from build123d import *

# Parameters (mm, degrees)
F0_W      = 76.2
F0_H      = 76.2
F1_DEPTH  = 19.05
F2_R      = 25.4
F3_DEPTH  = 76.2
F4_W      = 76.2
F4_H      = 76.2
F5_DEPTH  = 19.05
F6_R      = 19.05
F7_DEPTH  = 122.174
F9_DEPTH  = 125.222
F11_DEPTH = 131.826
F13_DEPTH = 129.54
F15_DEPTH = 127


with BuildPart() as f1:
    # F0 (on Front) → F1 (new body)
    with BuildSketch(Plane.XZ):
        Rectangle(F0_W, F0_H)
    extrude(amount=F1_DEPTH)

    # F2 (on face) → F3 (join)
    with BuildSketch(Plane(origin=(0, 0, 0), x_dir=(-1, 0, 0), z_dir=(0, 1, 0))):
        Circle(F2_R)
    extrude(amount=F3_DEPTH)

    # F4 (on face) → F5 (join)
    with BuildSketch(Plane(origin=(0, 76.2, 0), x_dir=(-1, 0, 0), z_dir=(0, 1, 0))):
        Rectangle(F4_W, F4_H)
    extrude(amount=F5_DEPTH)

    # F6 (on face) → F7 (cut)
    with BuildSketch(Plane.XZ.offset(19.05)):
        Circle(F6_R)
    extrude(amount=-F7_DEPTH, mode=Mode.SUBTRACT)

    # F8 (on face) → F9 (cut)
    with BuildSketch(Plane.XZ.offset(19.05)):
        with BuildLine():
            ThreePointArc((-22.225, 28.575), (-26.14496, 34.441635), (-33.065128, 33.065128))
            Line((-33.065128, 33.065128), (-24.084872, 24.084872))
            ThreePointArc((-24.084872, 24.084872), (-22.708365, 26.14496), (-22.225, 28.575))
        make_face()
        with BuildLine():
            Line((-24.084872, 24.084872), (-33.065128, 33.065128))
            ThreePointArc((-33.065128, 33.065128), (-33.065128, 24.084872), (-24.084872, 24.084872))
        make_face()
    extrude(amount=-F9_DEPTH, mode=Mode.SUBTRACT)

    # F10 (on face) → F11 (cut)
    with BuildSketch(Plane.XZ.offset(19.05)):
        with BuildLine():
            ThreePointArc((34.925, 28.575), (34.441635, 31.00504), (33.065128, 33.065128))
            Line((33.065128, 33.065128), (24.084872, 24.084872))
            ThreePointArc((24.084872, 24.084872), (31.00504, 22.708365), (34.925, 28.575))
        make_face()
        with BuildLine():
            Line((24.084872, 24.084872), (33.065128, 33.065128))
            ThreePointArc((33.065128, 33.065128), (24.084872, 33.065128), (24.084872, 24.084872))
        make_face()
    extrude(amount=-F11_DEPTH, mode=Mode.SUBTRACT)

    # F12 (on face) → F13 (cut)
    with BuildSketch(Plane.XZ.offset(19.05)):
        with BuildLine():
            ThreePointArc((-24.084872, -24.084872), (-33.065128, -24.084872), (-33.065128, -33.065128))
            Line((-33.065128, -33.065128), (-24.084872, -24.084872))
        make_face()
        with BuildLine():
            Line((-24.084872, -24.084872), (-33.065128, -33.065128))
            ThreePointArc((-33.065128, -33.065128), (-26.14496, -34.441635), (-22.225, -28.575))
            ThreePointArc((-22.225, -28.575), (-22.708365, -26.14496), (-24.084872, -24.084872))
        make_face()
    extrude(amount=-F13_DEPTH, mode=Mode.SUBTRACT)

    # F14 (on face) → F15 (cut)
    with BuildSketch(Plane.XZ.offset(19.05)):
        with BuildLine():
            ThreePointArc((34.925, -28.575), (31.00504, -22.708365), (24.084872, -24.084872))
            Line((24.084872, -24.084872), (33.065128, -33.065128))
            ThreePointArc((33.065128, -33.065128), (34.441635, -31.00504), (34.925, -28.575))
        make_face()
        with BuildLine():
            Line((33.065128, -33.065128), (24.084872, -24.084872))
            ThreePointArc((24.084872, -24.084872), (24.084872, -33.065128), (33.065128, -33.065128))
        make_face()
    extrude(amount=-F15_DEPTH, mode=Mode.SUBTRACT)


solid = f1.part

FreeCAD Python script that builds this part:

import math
import FreeCAD as App
import Part
import Sketcher
from FreeCAD import Vector
Q = App.Units.Quantity


def add_polygon(sketch, points):
    """Adds a closed chain of lines whose ends are joined by coincident constraints."""
    first, n = sketch.GeometryCount, len(points)
    for a, b in zip(points, points[1:] + points[:1]):
        sketch.addGeometry(Part.LineSegment(App.Vector(*a, 0), App.Vector(*b, 0)), False)
    for i in range(n):
        sketch.addConstraint(Sketcher.Constraint("Coincident", first + i, 2, first + (i + 1) % n, 1))

doc = App.newDocument("Part")
params = doc.addObject("Spreadsheet::Sheet", "Params")
for row, (alias, value) in enumerate([
    ("sketch1_width", "3 in"),
    ("pad1_length", "0.75 in"),
    ("sketch2_diameter", "2 in"),
    ("pad2_length", "3 in"),
    ("sketch3_width", "3 in"),
    ("pad3_length", "0.75 in"),
    ("sketch4_diameter", "1.5 in"),
    ("pocket1_length", "4.81 in"),
    ("sketch5_radius", "0.25 in"),
    ("pocket2_length", "4.93 in"),
    ("sketch6_radius", "0.25 in"),
    ("pocket3_length", "5.19 in"),
    ("sketch7_radius", "0.25 in"),
    ("pocket4_length", "5.1 in"),
    ("sketch8_radius", "0.25 in"),
    ("pocket5_length", "5 in"),
], start=1):
    params.set(f"A{row}", alias)
    params.set(f"B{row}", "=" + value)
    params.setAlias(f"B{row}", alias)

body = doc.addObject("PartDesign::Body", "Body")

# Sketch on XZ plane
sketch1 = body.newObject("Sketcher::SketchObject", "Sketch")
sketch1.AttachmentSupport = (doc.getObject("XZ_Plane"), [""])
sketch1.MapMode = "FlatFace"
add_polygon(sketch1, [(-38, 38), (-38, -38), (38, -38), (38, 38)])  # lines 0-3
sketch1.addConstraint(Sketcher.Constraint("Vertical", 0))
sketch1.addConstraint(Sketcher.Constraint("Horizontal", 1))
sketch1.addConstraint(Sketcher.Constraint("Vertical", 2))
sketch1.addConstraint(Sketcher.Constraint("Horizontal", 3))
sketch1.addConstraint(Sketcher.Constraint("Symmetric", 0, 2, 2, 2, -1, 1))
sketch1.addConstraint(Sketcher.Constraint("Equal", 3, 0))
sketch1.addConstraint(Sketcher.Constraint("DistanceX", 1, 1, 1, 2, Q("3 in")))
sketch1.setExpression("Constraints[10]", "Params.sketch1_width")
pad1 = body.newObject("PartDesign::Pad", "Pad")
pad1.Profile = sketch1
pad1.setExpression("Length", "Params.pad1_length")

# Sketch on XZ plane
sketch2 = body.newObject("Sketcher::SketchObject", "Sketch001")
sketch2.AttachmentSupport = (doc.getObject("XZ_Plane"), [""])
sketch2.MapMode = "FlatFace"
sketch2.addGeometry(Part.Circle(Vector(0, 0, 0), Vector(0, 0, 1), 25), False)
sketch2.addConstraint(Sketcher.Constraint("Coincident", 0, 3, -1, 1))
sketch2.addConstraint(Sketcher.Constraint("Diameter", 0, Q("2 in")))
sketch2.setExpression("Constraints[1]", "Params.sketch2_diameter")
pad2 = body.newObject("PartDesign::Pad", "Pad001")
pad2.Profile = sketch2
pad2.setExpression("Length", "Params.pad2_length")
pad2.Reversed = True

# Sketch on XZ plane
sketch3 = body.newObject("Sketcher::SketchObject", "Sketch002")
sketch3.AttachmentSupport = (doc.getObject("XZ_Plane"), [""])
sketch3.MapMode = "FlatFace"
sketch3.AttachmentOffset = App.Placement(Vector(0, 0, -3 * 25.4), App.Rotation())
add_polygon(sketch3, [(38, 38), (38, -38), (-38, -38), (-38, 38)])  # lines 0-3
sketch3.addConstraint(Sketcher.Constraint("Vertical", 0))
sketch3.addConstraint(Sketcher.Constraint("Horizontal", 1))
sketch3.addConstraint(Sketcher.Constraint("Vertical", 2))
sketch3.addConstraint(Sketcher.Constraint("Horizontal", 3))
sketch3.addConstraint(Sketcher.Constraint("Symmetric", 0, 2, 2, 2, -1, 1))
sketch3.addConstraint(Sketcher.Constraint("Equal", 3, 0))
sketch3.addConstraint(Sketcher.Constraint("DistanceX", 1, 2, 1, 1, Q("3 in")))
sketch3.setExpression("Constraints[10]", "Params.sketch3_width")
pad3 = body.newObject("PartDesign::Pad", "Pad002")
pad3.Profile = sketch3
pad3.setExpression("Length", "Params.pad3_length")
pad3.Reversed = True

# Sketch on XZ plane
sketch4 = body.newObject("Sketcher::SketchObject", "Sketch003")
sketch4.AttachmentSupport = (doc.getObject("XZ_Plane"), [""])
sketch4.MapMode = "FlatFace"
sketch4.AttachmentOffset = App.Placement(Vector(0, 0, 0.75 * 25.4), App.Rotation())
sketch4.addGeometry(Part.Circle(Vector(0, 0, 0), Vector(0, 0, 1), 19), False)
sketch4.addConstraint(Sketcher.Constraint("Coincident", 0, 3, -1, 1))
sketch4.addConstraint(Sketcher.Constraint("Diameter", 0, Q("1.5 in")))
sketch4.setExpression("Constraints[1]", "Params.sketch4_diameter")
pocket1 = body.newObject("PartDesign::Pocket", "Pocket")
pocket1.Profile = sketch4
pocket1.setExpression("Length", "Params.pocket1_length")

# Sketch on XZ plane
sketch5 = body.newObject("Sketcher::SketchObject", "Sketch004")
sketch5.AttachmentSupport = (doc.getObject("XZ_Plane"), [""])
sketch5.MapMode = "FlatFace"
sketch5.AttachmentOffset = App.Placement(Vector(0, 0, 0.75 * 25.4), App.Rotation())
sketch5.addGeometry(Part.ArcOfCircle(Part.Circle(Vector(-28.6, 28.6, 0), Vector(0, 0, 1), 6.3), math.radians(0), math.radians(135)), False)
sketch5.addGeometry(Part.ArcOfCircle(Part.Circle(Vector(-28.6, 28.6, 0), Vector(0, 0, 1), 6.3), math.radians(135), math.radians(315)), False)
sketch5.addGeometry(Part.ArcOfCircle(Part.Circle(Vector(-28.6, 28.6, 0), Vector(0, 0, 1), 6.3), math.radians(-45), math.radians(0)), False)
sketch5.addConstraint(Sketcher.Constraint("Tangent", 0, 2, 1, 1))
sketch5.addConstraint(Sketcher.Constraint("Tangent", 1, 2, 2, 1))
sketch5.addConstraint(Sketcher.Constraint("Tangent", 2, 2, 0, 1))
sketch5.addConstraint(Sketcher.Constraint("Horizontal", 1, 3, 2, 2))
sketch5.addConstraint(Sketcher.Constraint("Radius", 0, Q("0.25 in")))
sketch5.addConstraint(Sketcher.Constraint("DistanceX", 0, 3, -1, 1, Q("1.125 in")))
sketch5.addConstraint(Sketcher.Constraint("DistanceY", -1, 1, 0, 3, Q("1.125 in")))
sketch5.addConstraint(Sketcher.Constraint("DistanceX", 0, 2, 0, 3, 4.490128))
sketch5.addConstraint(Sketcher.Constraint("DistanceY", 1, 2, 0, 3, 4.490128))
sketch5.setExpression("Constraints[4]", "Params.sketch5_radius")
pocket2 = body.newObject("PartDesign::Pocket", "Pocket001")
pocket2.Profile = sketch5
pocket2.setExpression("Length", "Params.pocket2_length")

# Sketch on XZ plane
sketch6 = body.newObject("Sketcher::SketchObject", "Sketch005")
sketch6.AttachmentSupport = (doc.getObject("XZ_Plane"), [""])
sketch6.MapMode = "FlatFace"
sketch6.AttachmentOffset = App.Placement(Vector(0, 0, 0.75 * 25.4), App.Rotation())
sketch6.addGeometry(Part.ArcOfCircle(Part.Circle(Vector(28.6, 28.6, 0), Vector(0, 0, 1), 6.3), math.radians(0), math.radians(45)), False)
sketch6.addGeometry(Part.ArcOfCircle(Part.Circle(Vector(28.6, 28.6, 0), Vector(0, 0, 1), 6.3), math.radians(45), math.radians(225)), False)
sketch6.addGeometry(Part.ArcOfCircle(Part.Circle(Vector(28.6, 28.6, 0), Vector(0, 0, 1), 6.3), math.radians(-135), math.radians(0)), False)
sketch6.addConstraint(Sketcher.Constraint("Tangent", 0, 2, 1, 1))
sketch6.addConstraint(Sketcher.Constraint("Tangent", 1, 2, 2, 1))
sketch6.addConstraint(Sketcher.Constraint("Tangent", 2, 2, 0, 1))
sketch6.addConstraint(Sketcher.Constraint("Horizontal", 1, 3, 2, 2))
sketch6.addConstraint(Sketcher.Constraint("Radius", 0, Q("0.25 in")))
sketch6.addConstraint(Sketcher.Constraint("DistanceX", -1, 1, 0, 3, Q("1.125 in")))
sketch6.addConstraint(Sketcher.Constraint("DistanceY", -1, 1, 0, 3, Q("1.125 in")))
sketch6.addConstraint(Sketcher.Constraint("DistanceY", 2, 3, 0, 2, 4.490128))
sketch6.addConstraint(Sketcher.Constraint("DistanceX", 1, 2, 2, 3, 4.490128))
sketch6.setExpression("Constraints[4]", "Params.sketch6_radius")
pocket3 = body.newObject("PartDesign::Pocket", "Pocket002")
pocket3.Profile = sketch6
pocket3.setExpression("Length", "Params.pocket3_length")

# Sketch on XZ plane
sketch7 = body.newObject("Sketcher::SketchObject", "Sketch006")
sketch7.AttachmentSupport = (doc.getObject("XZ_Plane"), [""])
sketch7.MapMode = "FlatFace"
sketch7.AttachmentOffset = App.Placement(Vector(0, 0, 0.75 * 25.4), App.Rotation())
sketch7.addGeometry(Part.ArcOfCircle(Part.Circle(Vector(-28.6, -28.6, 0), Vector(0, 0, 1), 6.3), math.radians(45), math.radians(225)), False)
sketch7.addGeometry(Part.ArcOfCircle(Part.Circle(Vector(-28.6, -28.6, 0), Vector(0, 0, 1), 6.3), math.radians(-135), math.radians(0)), False)
sketch7.addGeometry(Part.ArcOfCircle(Part.Circle(Vector(-28.6, -28.6, 0), Vector(0, 0, 1), 6.3), math.radians(0), math.radians(45)), False)
sketch7.addConstraint(Sketcher.Constraint("Tangent", 0, 2, 1, 1))
sketch7.addConstraint(Sketcher.Constraint("Tangent", 1, 2, 2, 1))
sketch7.addConstraint(Sketcher.Constraint("Tangent", 2, 2, 0, 1))
sketch7.addConstraint(Sketcher.Constraint("Horizontal", 2, 3, 1, 2))
sketch7.addConstraint(Sketcher.Constraint("Radius", 0, Q("0.25 in")))
sketch7.addConstraint(Sketcher.Constraint("DistanceX", 0, 3, -1, 1, Q("1.125 in")))
sketch7.addConstraint(Sketcher.Constraint("DistanceY", 0, 3, -1, 1, Q("1.125 in")))
sketch7.addConstraint(Sketcher.Constraint("DistanceX", 0, 2, 1, 3, 4.490128))
sketch7.addConstraint(Sketcher.Constraint("DistanceY", 1, 3, 2, 2, 4.490128))
sketch7.setExpression("Constraints[4]", "Params.sketch7_radius")
pocket4 = body.newObject("PartDesign::Pocket", "Pocket003")
pocket4.Profile = sketch7
pocket4.setExpression("Length", "Params.pocket4_length")

# Sketch on XZ plane
sketch8 = body.newObject("Sketcher::SketchObject", "Sketch007")
sketch8.AttachmentSupport = (doc.getObject("XZ_Plane"), [""])
sketch8.MapMode = "FlatFace"
sketch8.AttachmentOffset = App.Placement(Vector(0, 0, 0.75 * 25.4), App.Rotation())
sketch8.addGeometry(Part.ArcOfCircle(Part.Circle(Vector(28.6, -28.6, 0), Vector(0, 0, 1), 6.3), math.radians(0), math.radians(135)), False)
sketch8.addGeometry(Part.ArcOfCircle(Part.Circle(Vector(28.6, -28.6, 0), Vector(0, 0, 1), 6.3), math.radians(135), math.radians(315)), False)
sketch8.addGeometry(Part.ArcOfCircle(Part.Circle(Vector(28.6, -28.6, 0), Vector(0, 0, 1), 6.3), math.radians(-45), math.radians(0)), False)
sketch8.addConstraint(Sketcher.Constraint("Tangent", 0, 2, 1, 1))
sketch8.addConstraint(Sketcher.Constraint("Tangent", 1, 2, 2, 1))
sketch8.addConstraint(Sketcher.Constraint("Tangent", 2, 2, 0, 1))
sketch8.addConstraint(Sketcher.Constraint("Horizontal", 1, 3, 2, 2))
sketch8.addConstraint(Sketcher.Constraint("Radius", 0, Q("0.25 in")))
sketch8.addConstraint(Sketcher.Constraint("DistanceX", -1, 1, 0, 3, Q("1.125 in")))
sketch8.addConstraint(Sketcher.Constraint("DistanceY", 0, 3, -1, 1, Q("1.125 in")))
sketch8.addConstraint(Sketcher.Constraint("DistanceX", 0, 2, 0, 3, 4.490128))
sketch8.addConstraint(Sketcher.Constraint("DistanceY", 1, 2, 0, 3, 4.490128))
sketch8.setExpression("Constraints[4]", "Params.sketch8_radius")
pocket5 = body.newObject("PartDesign::Pocket", "Pocket004")
pocket5.Profile = sketch8
pocket5.setExpression("Length", "Params.pocket5_length")

doc.recompute()
